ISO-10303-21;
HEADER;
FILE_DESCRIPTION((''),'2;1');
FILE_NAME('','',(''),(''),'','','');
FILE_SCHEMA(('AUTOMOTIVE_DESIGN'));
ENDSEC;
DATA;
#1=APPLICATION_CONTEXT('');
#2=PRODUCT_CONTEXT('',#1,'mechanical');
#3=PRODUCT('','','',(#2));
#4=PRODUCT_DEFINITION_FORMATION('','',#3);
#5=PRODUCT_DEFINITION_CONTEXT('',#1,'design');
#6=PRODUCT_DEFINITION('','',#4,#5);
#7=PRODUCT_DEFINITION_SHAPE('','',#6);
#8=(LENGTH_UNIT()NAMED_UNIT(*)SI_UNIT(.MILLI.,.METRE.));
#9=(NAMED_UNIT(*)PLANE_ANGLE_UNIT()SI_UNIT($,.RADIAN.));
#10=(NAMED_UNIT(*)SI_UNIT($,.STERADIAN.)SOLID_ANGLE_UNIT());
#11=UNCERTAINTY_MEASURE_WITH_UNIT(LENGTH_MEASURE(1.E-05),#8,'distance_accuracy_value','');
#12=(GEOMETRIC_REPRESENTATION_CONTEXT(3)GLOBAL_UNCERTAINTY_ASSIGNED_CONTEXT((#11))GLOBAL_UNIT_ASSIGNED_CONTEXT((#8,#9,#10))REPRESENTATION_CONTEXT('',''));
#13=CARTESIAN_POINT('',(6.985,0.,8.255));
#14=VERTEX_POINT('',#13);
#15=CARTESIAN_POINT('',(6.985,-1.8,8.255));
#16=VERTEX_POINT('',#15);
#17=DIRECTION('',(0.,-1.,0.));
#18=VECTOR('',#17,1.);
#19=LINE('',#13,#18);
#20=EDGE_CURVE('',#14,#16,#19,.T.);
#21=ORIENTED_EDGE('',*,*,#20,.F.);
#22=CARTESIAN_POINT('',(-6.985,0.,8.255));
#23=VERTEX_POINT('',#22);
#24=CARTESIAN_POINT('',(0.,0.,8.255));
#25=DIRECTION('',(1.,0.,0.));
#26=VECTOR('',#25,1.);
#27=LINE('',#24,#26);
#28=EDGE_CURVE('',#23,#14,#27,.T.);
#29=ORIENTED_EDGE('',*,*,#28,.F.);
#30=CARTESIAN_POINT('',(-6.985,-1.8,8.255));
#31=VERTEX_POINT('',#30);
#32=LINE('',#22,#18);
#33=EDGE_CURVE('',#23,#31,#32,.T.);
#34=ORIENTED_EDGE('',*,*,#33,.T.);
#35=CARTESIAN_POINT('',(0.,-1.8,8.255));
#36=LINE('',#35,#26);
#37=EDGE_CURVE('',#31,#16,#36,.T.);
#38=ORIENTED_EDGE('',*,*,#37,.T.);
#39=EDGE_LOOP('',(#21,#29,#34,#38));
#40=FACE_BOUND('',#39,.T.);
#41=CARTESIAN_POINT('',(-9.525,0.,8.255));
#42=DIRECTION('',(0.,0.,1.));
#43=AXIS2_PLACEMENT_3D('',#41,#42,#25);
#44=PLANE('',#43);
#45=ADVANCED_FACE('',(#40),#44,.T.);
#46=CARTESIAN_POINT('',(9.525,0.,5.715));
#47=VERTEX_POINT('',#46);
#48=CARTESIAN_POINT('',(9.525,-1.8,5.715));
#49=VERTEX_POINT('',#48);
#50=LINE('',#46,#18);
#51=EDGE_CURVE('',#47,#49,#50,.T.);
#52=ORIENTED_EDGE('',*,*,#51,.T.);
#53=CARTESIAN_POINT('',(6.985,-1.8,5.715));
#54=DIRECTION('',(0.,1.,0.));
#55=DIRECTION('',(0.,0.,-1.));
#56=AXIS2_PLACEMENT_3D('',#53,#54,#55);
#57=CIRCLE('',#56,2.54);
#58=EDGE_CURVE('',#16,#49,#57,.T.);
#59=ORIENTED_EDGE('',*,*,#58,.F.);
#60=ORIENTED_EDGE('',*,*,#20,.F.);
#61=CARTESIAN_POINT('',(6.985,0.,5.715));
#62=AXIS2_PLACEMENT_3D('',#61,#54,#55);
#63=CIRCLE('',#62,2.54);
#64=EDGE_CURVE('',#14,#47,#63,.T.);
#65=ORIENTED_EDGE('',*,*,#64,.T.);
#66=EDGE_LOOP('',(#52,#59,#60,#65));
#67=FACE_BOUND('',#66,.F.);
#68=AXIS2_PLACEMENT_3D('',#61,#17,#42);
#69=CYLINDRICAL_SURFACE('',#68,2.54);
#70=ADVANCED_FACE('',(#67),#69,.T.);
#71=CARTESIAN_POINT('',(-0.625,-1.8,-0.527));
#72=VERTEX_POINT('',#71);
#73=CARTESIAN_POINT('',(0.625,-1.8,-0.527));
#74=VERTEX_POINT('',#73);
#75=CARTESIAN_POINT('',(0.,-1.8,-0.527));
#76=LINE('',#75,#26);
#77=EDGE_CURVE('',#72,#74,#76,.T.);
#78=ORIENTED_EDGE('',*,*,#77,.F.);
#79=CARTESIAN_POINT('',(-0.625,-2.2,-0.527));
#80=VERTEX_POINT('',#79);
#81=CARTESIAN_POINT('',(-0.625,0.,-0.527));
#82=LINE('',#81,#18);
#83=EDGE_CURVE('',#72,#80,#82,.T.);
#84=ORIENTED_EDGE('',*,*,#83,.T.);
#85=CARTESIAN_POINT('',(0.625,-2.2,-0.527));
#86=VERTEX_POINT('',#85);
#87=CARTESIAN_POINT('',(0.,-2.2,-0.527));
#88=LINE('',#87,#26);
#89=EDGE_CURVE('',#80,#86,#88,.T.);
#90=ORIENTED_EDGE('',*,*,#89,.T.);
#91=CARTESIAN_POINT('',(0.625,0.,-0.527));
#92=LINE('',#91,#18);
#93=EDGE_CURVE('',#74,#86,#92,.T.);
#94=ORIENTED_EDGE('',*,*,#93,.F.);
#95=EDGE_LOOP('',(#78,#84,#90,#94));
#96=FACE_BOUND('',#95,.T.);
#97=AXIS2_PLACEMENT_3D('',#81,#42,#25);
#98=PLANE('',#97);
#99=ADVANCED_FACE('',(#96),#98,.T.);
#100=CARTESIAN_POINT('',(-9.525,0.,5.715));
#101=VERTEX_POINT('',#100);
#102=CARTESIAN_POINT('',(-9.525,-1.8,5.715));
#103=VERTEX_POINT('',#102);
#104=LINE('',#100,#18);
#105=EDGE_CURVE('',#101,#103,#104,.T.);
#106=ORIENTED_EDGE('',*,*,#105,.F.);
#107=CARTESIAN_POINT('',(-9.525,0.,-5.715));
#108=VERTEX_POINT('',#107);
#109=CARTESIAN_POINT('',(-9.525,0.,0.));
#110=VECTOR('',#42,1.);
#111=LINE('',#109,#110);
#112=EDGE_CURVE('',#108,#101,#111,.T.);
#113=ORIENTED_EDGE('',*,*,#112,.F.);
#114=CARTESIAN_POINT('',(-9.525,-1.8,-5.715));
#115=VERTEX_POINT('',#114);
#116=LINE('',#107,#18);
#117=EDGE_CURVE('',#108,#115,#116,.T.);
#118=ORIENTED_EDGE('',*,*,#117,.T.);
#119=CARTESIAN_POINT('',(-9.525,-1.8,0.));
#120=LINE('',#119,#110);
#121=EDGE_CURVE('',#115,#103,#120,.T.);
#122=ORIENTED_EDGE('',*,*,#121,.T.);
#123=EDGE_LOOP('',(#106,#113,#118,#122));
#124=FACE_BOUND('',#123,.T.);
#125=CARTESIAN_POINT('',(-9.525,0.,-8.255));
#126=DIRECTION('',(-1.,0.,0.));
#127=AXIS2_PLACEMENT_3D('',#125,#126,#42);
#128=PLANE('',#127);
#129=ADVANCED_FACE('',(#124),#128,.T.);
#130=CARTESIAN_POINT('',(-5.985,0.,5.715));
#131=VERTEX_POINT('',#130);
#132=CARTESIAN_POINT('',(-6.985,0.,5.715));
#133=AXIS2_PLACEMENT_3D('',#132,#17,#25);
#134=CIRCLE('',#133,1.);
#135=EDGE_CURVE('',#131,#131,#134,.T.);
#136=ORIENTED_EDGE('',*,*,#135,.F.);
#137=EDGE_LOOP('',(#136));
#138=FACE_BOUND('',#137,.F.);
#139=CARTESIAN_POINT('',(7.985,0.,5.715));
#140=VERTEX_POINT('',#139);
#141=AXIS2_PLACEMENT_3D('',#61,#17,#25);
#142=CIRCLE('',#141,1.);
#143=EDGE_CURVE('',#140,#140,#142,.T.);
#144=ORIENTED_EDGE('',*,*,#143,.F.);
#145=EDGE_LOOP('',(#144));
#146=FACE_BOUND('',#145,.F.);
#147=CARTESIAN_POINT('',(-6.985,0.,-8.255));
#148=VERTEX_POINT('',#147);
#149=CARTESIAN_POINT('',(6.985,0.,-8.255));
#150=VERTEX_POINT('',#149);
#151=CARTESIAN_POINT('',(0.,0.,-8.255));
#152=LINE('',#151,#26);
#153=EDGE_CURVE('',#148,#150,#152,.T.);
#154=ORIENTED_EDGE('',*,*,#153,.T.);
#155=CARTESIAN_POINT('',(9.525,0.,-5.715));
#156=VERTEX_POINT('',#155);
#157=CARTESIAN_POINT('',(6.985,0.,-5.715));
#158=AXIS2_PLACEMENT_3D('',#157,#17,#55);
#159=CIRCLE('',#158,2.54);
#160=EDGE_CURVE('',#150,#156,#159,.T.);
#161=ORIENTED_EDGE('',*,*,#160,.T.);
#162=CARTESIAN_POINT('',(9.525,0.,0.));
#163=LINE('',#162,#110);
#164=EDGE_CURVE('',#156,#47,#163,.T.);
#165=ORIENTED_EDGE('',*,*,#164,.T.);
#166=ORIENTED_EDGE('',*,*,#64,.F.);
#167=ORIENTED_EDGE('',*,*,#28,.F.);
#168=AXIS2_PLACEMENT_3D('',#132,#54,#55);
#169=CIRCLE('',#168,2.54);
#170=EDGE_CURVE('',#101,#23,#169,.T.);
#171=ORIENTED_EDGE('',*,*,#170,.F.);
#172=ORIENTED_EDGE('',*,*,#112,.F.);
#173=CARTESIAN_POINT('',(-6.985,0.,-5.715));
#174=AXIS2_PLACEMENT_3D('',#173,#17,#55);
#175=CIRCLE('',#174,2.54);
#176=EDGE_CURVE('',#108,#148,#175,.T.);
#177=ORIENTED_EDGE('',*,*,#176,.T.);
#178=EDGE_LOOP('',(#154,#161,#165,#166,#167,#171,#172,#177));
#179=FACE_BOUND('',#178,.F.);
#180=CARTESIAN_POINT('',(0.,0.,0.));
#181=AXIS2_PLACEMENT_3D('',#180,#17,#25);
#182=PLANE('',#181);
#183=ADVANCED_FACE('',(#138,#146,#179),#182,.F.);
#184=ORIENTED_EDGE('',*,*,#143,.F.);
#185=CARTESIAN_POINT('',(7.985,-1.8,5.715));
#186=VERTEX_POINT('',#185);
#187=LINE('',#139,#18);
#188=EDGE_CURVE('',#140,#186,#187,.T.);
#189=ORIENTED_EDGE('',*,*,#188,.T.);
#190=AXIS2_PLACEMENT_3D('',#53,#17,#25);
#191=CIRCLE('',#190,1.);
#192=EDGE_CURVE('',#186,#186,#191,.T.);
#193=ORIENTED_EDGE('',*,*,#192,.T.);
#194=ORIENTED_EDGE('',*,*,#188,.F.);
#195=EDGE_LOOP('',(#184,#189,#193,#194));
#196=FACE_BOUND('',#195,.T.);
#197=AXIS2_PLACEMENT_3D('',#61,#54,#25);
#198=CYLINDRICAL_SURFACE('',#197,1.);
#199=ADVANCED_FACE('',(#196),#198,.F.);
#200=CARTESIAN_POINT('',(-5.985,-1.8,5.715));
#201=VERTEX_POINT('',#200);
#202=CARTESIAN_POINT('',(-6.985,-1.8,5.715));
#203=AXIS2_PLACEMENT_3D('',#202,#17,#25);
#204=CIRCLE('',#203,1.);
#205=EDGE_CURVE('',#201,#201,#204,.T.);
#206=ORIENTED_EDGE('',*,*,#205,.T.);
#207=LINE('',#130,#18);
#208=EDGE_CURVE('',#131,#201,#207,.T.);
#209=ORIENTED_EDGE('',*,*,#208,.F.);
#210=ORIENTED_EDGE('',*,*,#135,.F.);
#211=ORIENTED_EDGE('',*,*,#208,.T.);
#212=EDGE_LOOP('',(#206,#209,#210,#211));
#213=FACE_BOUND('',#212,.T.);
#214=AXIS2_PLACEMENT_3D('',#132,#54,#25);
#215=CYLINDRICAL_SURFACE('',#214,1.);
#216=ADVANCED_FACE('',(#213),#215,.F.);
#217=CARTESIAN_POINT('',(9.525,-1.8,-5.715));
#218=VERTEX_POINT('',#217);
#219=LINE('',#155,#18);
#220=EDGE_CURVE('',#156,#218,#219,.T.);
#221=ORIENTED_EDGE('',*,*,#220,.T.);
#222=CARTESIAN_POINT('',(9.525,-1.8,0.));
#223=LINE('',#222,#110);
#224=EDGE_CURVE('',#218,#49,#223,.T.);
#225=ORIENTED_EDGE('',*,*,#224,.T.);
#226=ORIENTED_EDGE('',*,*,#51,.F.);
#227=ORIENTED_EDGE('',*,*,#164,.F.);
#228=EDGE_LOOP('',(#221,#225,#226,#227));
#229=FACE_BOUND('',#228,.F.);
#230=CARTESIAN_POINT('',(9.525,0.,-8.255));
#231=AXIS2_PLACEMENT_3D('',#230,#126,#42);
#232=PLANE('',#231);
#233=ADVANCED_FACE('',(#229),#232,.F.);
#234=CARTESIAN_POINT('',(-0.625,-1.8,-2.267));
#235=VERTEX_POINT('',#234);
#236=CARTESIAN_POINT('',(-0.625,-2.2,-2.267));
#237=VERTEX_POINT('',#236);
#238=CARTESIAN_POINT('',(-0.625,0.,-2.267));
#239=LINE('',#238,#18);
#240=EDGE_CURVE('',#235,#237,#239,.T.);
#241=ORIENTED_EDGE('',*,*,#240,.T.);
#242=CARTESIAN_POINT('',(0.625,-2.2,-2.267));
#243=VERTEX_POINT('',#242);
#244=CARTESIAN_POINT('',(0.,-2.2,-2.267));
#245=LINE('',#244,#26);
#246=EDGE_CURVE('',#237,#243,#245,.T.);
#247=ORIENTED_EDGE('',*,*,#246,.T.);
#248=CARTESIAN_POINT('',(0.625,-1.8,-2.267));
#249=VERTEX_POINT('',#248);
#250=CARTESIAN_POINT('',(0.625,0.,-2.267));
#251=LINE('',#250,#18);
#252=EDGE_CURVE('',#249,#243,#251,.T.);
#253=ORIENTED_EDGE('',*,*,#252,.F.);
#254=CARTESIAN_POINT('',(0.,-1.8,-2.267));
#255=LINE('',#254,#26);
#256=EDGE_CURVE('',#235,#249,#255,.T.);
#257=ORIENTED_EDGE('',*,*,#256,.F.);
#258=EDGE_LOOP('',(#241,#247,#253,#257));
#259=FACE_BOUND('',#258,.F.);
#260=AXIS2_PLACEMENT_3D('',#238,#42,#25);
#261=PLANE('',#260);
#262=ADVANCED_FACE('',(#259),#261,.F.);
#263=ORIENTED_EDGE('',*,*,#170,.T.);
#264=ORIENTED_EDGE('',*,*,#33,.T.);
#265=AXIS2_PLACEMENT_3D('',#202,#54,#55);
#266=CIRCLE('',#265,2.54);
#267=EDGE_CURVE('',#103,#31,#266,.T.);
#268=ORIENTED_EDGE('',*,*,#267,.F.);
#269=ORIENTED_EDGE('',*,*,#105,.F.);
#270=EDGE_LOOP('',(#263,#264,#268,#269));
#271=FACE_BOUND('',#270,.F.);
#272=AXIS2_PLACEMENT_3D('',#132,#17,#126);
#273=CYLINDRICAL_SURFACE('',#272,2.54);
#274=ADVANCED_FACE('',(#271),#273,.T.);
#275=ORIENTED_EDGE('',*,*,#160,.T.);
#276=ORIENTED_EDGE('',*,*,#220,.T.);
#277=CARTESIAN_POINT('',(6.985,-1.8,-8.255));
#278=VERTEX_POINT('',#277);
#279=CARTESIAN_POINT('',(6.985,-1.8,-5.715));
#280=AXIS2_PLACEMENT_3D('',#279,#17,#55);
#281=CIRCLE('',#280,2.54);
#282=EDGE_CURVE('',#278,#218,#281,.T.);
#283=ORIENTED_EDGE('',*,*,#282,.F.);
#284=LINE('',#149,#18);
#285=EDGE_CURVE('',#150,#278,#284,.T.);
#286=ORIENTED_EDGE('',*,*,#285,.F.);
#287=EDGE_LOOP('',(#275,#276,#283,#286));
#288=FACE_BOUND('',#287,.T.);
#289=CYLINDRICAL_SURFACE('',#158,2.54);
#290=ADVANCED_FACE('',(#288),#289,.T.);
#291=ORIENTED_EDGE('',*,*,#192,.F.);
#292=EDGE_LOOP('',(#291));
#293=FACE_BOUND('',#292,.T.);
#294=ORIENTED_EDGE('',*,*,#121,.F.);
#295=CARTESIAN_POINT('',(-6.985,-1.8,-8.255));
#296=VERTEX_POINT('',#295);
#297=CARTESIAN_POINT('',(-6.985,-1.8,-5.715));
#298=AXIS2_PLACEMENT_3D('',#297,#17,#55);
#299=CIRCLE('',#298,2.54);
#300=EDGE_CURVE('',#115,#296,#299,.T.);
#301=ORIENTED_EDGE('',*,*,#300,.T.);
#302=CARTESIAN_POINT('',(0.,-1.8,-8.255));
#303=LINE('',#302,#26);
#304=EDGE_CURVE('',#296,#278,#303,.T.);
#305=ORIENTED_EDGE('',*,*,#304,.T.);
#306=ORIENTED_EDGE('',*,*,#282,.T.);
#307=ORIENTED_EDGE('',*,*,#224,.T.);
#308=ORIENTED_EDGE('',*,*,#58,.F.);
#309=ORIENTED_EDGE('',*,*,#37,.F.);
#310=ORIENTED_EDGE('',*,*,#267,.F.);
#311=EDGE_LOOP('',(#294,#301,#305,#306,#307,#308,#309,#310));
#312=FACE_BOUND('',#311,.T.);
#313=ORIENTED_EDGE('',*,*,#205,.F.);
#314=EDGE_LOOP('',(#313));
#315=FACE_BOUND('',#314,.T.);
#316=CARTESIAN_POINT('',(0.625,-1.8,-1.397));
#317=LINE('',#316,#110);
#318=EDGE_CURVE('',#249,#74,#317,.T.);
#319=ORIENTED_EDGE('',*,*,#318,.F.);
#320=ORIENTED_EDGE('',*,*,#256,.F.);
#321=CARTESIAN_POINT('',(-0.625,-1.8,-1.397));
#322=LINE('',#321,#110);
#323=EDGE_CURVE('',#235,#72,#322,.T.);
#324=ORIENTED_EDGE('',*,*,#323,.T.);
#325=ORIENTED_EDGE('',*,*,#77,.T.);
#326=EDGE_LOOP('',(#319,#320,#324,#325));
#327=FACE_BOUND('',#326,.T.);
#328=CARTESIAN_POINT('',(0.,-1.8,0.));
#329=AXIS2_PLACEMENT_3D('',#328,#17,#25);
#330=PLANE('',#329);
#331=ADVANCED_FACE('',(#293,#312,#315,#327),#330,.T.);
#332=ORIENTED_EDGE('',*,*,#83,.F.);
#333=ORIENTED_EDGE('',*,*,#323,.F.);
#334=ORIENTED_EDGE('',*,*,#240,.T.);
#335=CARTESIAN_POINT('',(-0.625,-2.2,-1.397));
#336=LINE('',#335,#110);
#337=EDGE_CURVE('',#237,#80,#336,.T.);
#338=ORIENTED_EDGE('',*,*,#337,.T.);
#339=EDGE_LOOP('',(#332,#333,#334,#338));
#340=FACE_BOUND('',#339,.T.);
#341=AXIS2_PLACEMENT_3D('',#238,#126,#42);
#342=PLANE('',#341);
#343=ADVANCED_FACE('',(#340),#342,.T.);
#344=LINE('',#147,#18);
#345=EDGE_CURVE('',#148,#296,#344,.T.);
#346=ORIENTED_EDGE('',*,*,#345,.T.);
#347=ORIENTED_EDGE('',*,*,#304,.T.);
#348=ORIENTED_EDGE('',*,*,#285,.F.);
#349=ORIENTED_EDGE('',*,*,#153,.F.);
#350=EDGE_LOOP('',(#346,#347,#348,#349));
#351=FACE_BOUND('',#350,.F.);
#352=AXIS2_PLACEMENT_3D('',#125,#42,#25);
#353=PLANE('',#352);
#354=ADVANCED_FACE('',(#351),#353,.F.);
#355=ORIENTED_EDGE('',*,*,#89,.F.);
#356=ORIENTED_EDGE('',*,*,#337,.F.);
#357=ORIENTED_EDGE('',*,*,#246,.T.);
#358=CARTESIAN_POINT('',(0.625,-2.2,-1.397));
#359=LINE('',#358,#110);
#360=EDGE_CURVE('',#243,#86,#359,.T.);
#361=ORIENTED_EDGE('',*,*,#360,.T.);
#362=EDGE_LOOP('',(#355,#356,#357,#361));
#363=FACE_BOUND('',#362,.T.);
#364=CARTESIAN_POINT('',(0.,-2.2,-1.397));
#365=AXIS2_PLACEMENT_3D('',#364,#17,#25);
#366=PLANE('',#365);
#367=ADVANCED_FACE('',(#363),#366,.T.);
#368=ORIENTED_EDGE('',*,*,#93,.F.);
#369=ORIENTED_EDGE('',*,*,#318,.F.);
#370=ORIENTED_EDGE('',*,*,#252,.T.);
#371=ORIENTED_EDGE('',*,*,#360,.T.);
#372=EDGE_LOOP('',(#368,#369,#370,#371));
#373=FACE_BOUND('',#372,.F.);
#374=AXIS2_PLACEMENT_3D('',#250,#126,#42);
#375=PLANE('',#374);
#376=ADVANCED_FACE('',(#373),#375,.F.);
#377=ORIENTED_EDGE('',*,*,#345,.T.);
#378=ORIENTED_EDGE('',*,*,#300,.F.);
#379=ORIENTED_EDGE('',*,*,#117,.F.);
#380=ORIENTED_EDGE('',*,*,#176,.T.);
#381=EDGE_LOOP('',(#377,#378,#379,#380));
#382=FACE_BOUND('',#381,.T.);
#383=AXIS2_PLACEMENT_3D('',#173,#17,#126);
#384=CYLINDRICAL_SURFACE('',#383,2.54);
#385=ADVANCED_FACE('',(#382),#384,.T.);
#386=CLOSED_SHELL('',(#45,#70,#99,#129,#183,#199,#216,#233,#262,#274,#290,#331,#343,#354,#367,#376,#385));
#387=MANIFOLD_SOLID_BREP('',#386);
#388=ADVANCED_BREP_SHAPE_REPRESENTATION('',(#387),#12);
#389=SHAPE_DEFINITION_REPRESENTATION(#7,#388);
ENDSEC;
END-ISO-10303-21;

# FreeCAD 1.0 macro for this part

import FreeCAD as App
import Part
import Sketcher

V = App.Vector


def edges_at(feature, points):
    """Names of the edges that pass closest to the given points."""
    edges = feature.Shape.Edges
    near = lambda p: min(range(len(edges)), key=lambda i: edges[i].distToShape(Part.Vertex(*p))[0])
    return sorted({f"Edge{near(p) + 1}" for p in points})


def add_polygon(sketch, points):
    """Adds a closed chain of lines whose ends are joined by coincident constraints."""
    first, n = sketch.GeometryCount, len(points)
    for a, b in zip(points, points[1:] + points[:1]):
        sketch.addGeometry(Part.LineSegment(App.Vector(*a, 0), App.Vector(*b, 0)), False)
    for i in range(n):
        sketch.addConstraint(Sketcher.Constraint("Coincident", first + i, 2, first + (i + 1) % n, 1))

doc = App.newDocument("Part")
body = doc.addObject("PartDesign::Body", "Body")

# Sketch on XZ plane
sketch1 = body.newObject("Sketcher::SketchObject", "Sketch")
sketch1.AttachmentSupport = (doc.getObject("XZ_Plane"), [""])
sketch1.MapMode = "FlatFace"
add_polygon(sketch1, [(-9.5, 8.3), (-9.5, -8.3), (9.5, -8.3), (9.5, 8.3)])  # lines 0-3
add_polygon(sketch1, [(0.6, -2.3), (-0.6, -2.3), (-0.6, -0.5), (0.6, -0.5)])  # lines 4-7
sketch1.addGeometry(Part.Circle(V(-7, 5.7, 0), V(0, 0, 1), 1), False)  # 8
sketch1.addGeometry(Part.Circle(V(7, 5.7, 0), V(0, 0, 1), 1), False)  # 9
sketch1.addConstraint([
    Sketcher.Constraint("Vertical", 0),
    Sketcher.Constraint("Horizontal", 1),
    Sketcher.Constraint("Vertical", 2),
    Sketcher.Constraint("Horizontal", 3),
    Sketcher.Constraint("Horizontal", 4),
    Sketcher.Constraint("Vertical", 5),
    Sketcher.Constraint("Horizontal", 6),
    Sketcher.Constraint("Vertical", 7),
    Sketcher.Constraint("Equal", 8, 9),
    Sketcher.Constraint("Symmetric", 0, 2, 2, 2, -1, 1),
    Sketcher.Constraint("Symmetric", 8, 3, 9, 3, -2),
    Sketcher.Constraint("Diameter", 8, 2.0),
    Sketcher.Constraint("DistanceX", 1, 1, 1, 2, 19.05),
    Sketcher.Constraint("DistanceX", 4, 2, 4, 1, 1.25),
    Sketcher.Constraint("DistanceY", 0, 2, 0, 1, 16.51),
    Sketcher.Constraint("DistanceY", 5, 1, 5, 2, 1.74),
    Sketcher.Constraint("DistanceX", 0, 2, 4, 2, 8.9),
    Sketcher.Constraint("DistanceX", 8, 3, 9, 3, 13.97),
    Sketcher.Constraint("DistanceY", 0, 2, 8, 3, 13.97),
    Sketcher.Constraint("DistanceY", 4, 2, -1, 1, 2.267),
])
pad1 = body.newObject("PartDesign::Pad", "Pad")
pad1.Profile = sketch1
pad1.Length = 1.8

# Sketch on XZ plane
sketch2 = body.newObject("Sketcher::SketchObject", "Sketch001")
sketch2.AttachmentSupport = (doc.getObject("XZ_Plane"), [""])
sketch2.MapMode = "FlatFace"
add_polygon(sketch2, [(-0.6, -0.5), (-0.6, -2.3), (0.6, -2.3), (0.6, -0.5)])  # lines 0-3
sketch2.addConstraint([
    Sketcher.Constraint("Vertical", 0),
    Sketcher.Constraint("Horizontal", 1),
    Sketcher.Constraint("Vertical", 2),
    Sketcher.Constraint("Horizontal", 3),
    Sketcher.Constraint("DistanceX", 1, 1, 1, 2, 1.25),
    Sketcher.Constraint("DistanceY", 0, 2, 0, 1, 1.74),
    Sketcher.Constraint("DistanceX", 0, 2, -1, 1, 0.625),
    Sketcher.Constraint("DistanceY", 0, 2, -1, 1, 2.267),
])
pad2 = body.newObject("PartDesign::Pad", "Pad001")
pad2.Profile = sketch2
pad2.Length = 2.2
doc.recompute()

fillet = body.newObject("PartDesign::Fillet", "Fillet")
fillet.Base = (pad2, edges_at(pad2, [
    (-9.525, -0.9, 8.255),
    (9.525, -0.9, 8.255),
    (9.525, -0.9, -8.255),
    (-9.525, -0.9, -8.255),
]))
fillet.Radius = 2.54

doc.recompute()
